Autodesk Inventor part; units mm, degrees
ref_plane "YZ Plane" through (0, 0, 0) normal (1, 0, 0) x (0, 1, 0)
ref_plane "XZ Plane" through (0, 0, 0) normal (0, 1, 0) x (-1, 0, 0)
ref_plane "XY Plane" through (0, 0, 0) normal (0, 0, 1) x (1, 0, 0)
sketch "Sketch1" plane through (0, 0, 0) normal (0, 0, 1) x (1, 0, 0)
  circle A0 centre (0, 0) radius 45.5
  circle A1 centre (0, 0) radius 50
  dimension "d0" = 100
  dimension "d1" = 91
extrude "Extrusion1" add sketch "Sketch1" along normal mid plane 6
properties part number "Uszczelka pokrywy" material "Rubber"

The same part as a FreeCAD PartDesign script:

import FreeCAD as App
import Part
import Sketcher

doc = App.newDocument("Part")
body = doc.addObject("PartDesign::Body", "Body")

sketch1 = body.newObject("Sketcher::SketchObject", "Sketch")
sketch1.AttachmentSupport = (doc.getObject("XY_Plane"), [""])
sketch1.MapMode = "FlatFace"
sketch1.addGeometry([
    Part.Circle(App.Vector(0, 0, 0), App.Vector(0, 0, 1), 50),
    Part.Circle(App.Vector(0, 0, 0), App.Vector(0, 0, 1), 46),
], False)
sketch1.addConstraint([
    Sketcher.Constraint("Coincident", 0, 3, -1, 1),
    Sketcher.Constraint("Coincident", 1, 3, -1, 1),
    Sketcher.Constraint("Diameter", 0, 100.0),
    Sketcher.Constraint("Diameter", 1, 91.0),
])
pad1 = body.newObject("PartDesign::Pad", "Pad")
pad1.Profile = sketch1
pad1.Length = 6
pad1.Midplane = True

doc.recompute()
